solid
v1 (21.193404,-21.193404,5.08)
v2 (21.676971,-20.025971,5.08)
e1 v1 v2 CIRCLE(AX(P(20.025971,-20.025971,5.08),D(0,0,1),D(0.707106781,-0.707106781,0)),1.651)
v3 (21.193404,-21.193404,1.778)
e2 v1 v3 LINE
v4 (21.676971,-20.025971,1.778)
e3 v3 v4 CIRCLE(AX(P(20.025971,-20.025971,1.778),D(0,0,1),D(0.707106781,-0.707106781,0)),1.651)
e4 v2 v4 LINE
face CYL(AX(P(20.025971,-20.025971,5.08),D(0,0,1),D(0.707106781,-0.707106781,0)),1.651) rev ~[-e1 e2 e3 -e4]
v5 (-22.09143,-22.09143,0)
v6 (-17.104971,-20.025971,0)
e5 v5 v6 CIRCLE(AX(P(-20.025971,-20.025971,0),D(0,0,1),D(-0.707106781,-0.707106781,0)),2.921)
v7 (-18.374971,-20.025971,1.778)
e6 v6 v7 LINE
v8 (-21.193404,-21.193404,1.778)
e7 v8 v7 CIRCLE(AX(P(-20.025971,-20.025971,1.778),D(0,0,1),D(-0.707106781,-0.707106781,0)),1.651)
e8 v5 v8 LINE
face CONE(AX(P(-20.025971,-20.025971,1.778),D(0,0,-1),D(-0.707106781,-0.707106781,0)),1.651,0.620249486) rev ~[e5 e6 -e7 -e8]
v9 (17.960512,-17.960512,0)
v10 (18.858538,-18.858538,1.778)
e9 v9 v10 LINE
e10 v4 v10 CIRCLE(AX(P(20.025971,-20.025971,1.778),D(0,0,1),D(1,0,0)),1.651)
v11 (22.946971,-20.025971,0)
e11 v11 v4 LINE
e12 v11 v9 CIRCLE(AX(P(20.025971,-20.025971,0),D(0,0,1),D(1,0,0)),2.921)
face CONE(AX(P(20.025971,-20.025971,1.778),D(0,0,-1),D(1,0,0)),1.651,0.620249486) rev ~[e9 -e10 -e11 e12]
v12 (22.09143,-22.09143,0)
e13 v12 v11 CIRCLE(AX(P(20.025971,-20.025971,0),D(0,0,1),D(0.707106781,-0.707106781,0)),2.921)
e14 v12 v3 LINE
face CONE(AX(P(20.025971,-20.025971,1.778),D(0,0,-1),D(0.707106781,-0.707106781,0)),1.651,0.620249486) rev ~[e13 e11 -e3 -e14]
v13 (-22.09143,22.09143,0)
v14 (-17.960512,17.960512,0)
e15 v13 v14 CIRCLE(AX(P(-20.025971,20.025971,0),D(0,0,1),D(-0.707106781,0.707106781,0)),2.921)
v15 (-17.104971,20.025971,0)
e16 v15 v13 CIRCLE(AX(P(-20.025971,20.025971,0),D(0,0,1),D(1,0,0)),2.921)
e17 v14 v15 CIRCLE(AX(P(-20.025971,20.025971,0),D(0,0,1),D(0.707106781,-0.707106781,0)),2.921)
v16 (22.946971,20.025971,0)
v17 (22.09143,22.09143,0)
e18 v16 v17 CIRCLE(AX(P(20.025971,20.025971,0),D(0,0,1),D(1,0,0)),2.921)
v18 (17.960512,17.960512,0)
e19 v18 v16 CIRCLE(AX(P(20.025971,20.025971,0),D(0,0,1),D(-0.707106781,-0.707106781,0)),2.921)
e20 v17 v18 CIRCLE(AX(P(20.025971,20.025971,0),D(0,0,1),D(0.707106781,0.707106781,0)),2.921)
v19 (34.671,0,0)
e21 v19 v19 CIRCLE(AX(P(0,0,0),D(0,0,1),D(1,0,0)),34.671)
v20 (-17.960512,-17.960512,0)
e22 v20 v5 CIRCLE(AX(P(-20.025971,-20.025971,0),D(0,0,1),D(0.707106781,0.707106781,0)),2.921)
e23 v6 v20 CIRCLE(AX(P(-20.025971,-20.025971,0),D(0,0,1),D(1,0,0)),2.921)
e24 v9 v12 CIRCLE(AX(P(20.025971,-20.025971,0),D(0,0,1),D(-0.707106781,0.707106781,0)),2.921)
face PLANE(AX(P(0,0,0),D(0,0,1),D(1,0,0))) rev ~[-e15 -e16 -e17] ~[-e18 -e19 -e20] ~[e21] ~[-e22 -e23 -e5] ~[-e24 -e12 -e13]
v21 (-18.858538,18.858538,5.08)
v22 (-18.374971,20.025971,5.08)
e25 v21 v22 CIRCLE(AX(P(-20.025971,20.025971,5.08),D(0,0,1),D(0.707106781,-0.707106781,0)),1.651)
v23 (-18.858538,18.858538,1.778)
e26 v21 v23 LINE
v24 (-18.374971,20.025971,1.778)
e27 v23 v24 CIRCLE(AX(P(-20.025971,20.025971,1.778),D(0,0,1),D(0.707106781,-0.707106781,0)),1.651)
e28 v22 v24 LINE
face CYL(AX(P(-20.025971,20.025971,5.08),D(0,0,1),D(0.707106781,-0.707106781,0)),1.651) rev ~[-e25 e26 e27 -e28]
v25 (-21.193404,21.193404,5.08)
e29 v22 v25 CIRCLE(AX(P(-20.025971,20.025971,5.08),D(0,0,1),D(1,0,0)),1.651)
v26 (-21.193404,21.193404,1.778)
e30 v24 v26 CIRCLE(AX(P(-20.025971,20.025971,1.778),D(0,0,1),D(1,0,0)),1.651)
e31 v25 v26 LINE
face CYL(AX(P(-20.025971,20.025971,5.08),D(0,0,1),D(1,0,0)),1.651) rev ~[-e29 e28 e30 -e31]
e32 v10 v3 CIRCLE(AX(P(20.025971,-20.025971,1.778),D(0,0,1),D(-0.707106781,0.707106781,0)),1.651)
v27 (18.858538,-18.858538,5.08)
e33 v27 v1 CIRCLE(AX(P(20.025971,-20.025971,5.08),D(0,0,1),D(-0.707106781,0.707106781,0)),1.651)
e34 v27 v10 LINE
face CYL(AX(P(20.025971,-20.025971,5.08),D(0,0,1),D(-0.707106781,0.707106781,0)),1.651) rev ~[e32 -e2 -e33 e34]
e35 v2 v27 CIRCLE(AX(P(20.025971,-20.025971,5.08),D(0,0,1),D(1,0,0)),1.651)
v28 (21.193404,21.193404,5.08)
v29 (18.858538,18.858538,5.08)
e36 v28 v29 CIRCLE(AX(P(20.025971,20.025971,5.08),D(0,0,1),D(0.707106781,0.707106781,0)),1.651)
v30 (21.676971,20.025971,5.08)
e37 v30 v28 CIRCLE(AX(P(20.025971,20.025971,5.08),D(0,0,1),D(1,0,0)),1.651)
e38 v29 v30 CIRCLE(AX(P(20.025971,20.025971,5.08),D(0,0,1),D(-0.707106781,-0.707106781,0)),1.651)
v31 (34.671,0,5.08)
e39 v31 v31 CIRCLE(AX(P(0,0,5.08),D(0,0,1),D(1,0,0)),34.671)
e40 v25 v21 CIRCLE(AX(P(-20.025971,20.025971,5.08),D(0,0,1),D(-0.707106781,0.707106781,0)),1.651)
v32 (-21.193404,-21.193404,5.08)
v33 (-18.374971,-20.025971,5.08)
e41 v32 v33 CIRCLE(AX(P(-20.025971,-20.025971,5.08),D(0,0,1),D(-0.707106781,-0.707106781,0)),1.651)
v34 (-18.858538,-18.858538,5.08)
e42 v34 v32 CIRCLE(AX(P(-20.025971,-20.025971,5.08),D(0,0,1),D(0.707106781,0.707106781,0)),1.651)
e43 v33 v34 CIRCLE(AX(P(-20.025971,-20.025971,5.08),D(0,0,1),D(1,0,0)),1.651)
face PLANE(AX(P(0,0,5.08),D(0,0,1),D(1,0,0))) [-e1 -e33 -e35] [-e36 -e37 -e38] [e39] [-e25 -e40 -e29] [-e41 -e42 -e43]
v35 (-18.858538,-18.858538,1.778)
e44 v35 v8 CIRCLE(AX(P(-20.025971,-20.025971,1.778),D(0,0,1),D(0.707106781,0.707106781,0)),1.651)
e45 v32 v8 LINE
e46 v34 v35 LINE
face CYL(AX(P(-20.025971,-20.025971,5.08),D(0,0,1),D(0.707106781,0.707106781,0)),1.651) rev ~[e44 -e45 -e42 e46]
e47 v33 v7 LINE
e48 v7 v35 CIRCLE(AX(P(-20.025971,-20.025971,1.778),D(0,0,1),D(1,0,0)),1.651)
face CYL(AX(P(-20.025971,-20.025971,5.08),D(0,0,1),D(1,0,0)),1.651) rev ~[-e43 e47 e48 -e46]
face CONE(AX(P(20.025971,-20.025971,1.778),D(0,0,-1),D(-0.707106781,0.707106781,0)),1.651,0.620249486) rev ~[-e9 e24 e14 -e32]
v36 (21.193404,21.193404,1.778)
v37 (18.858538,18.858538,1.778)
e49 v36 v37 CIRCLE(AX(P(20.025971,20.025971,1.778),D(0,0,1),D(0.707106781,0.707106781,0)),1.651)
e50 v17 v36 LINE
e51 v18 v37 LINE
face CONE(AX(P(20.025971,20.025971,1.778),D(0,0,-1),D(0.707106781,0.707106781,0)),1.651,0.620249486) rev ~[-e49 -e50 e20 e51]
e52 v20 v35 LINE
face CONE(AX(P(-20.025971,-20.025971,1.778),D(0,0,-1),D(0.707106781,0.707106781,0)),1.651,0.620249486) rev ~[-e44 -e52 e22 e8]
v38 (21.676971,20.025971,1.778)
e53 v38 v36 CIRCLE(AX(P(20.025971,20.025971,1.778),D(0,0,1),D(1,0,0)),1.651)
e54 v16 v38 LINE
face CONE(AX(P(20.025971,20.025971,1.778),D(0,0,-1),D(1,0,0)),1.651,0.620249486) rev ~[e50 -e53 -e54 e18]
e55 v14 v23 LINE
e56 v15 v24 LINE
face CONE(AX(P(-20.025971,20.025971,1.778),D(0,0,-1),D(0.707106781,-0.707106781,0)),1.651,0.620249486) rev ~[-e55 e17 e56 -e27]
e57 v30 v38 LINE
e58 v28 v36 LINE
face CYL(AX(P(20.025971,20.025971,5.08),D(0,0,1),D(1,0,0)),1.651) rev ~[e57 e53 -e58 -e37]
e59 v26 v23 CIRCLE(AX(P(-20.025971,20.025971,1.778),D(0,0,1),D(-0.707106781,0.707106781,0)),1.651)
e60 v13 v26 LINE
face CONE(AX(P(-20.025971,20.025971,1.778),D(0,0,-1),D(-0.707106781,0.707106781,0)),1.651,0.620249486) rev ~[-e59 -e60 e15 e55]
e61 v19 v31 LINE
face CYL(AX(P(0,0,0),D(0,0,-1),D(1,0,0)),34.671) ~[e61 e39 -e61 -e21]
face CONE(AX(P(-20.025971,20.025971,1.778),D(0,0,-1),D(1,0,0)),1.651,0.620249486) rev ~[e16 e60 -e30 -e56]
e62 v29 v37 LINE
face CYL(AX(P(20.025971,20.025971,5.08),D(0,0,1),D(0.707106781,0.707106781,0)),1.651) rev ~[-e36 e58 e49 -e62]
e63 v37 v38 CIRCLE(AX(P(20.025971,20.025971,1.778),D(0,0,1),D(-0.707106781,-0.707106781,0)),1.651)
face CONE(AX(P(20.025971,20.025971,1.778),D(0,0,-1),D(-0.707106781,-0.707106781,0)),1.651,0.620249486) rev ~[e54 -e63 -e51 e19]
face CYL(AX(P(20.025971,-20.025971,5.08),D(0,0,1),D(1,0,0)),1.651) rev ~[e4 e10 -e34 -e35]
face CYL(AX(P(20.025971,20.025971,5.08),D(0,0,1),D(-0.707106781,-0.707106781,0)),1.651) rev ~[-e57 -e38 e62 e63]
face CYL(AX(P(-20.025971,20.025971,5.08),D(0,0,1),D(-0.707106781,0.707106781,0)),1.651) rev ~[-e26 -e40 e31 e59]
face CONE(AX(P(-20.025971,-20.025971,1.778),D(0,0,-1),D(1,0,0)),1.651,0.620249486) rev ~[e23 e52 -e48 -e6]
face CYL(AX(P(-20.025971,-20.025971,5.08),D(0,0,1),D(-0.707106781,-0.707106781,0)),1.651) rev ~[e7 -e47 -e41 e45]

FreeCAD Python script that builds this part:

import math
import FreeCAD as App
import Part
import Sketcher
Q = App.Units.Quantity


def edges_at(feature, points):
    """Names of the edges that pass closest to the given points."""
    edges = feature.Shape.Edges
    near = lambda p: min(range(len(edges)), key=lambda i: edges[i].distToShape(Part.Vertex(*p))[0])
    return sorted({f"Edge{near(p) + 1}" for p in points})

doc = App.newDocument("Part")
params = doc.addObject("Spreadsheet::Sheet", "Params")
for row, (alias, value) in enumerate([
    ("sketch1_diameter", "2.73 in"),
    ("pad1_length", "0.2 in"),
    ("sketch2_radius", "0.065 in"),
    ("pocket1_length", "1 in"),
    ("chamfer_size", "0.05 in"),
    ("chamfer_size2", "0.07 in"),
], start=1):
    params.set(f"A{row}", alias)
    params.set(f"B{row}", "=" + value)
    params.setAlias(f"B{row}", alias)

body = doc.addObject("PartDesign::Body", "Body")

# Sketch on XY plane
sketch1 = body.newObject("Sketcher::SketchObject", "Sketch")
sketch1.AttachmentSupport = (doc.getObject("XY_Plane"), [""])
sketch1.MapMode = "FlatFace"
sketch1.addGeometry(Part.Circle(App.Vector(0, 0, 0), App.Vector(0, 0, 1), 35), False)
sketch1.addConstraint(Sketcher.Constraint("Coincident", 0, 3, -1, 1))
sketch1.addConstraint(Sketcher.Constraint("Diameter", 0, Q("2.73 in")))
sketch1.setExpression("Constraints[1]", "Params.sketch1_diameter")
pad1 = body.newObject("PartDesign::Pad", "Pad")
pad1.Profile = sketch1
pad1.setExpression("Length", "Params.pad1_length")

# Sketch on XY plane
sketch2 = body.newObject("Sketcher::SketchObject", "Sketch001")
sketch2.AttachmentSupport = (doc.getObject("XY_Plane"), [""])
sketch2.MapMode = "FlatFace"
sketch2.AttachmentOffset = App.Placement(App.Vector(0, 0, 0.2 * 25.4), App.Rotation())
sketch2.addGeometry(Part.ArcOfCircle(Part.Circle(App.Vector(20, 20, 0), App.Vector(0, 0, 1), 1.7), math.radians(45), math.radians(225)), False)
sketch2.addGeometry(Part.ArcOfCircle(Part.Circle(App.Vector(20, 20, 0), App.Vector(0, 0, 1), 1.7), math.radians(-135), math.radians(0)), False)
sketch2.addGeometry(Part.ArcOfCircle(Part.Circle(App.Vector(20, 20, 0), App.Vector(0, 0, 1), 1.7), math.radians(0), math.radians(45)), False)
sketch2.addGeometry(Part.ArcOfCircle(Part.Circle(App.Vector(-20, -20, 0), App.Vector(0, 0, 1), 1.7), math.radians(0), math.radians(45)), False)
sketch2.addGeometry(Part.ArcOfCircle(Part.Circle(App.Vector(-20, -20, 0), App.Vector(0, 0, 1), 1.7), math.radians(45), math.radians(225)), False)
sketch2.addGeometry(Part.ArcOfCircle(Part.Circle(App.Vector(-20, -20, 0), App.Vector(0, 0, 1), 1.7), math.radians(-135), math.radians(0)), False)
sketch2.addGeometry(Part.ArcOfCircle(Part.Circle(App.Vector(-20, 20, 0), App.Vector(0, 0, 1), 1.7), math.radians(135), math.radians(315)), False)
sketch2.addGeometry(Part.ArcOfCircle(Part.Circle(App.Vector(-20, 20, 0), App.Vector(0, 0, 1), 1.7), math.radians(-45), math.radians(0)), False)
sketch2.addGeometry(Part.ArcOfCircle(Part.Circle(App.Vector(-20, 20, 0), App.Vector(0, 0, 1), 1.7), math.radians(0), math.radians(135)), False)
sketch2.addGeometry(Part.ArcOfCircle(Part.Circle(App.Vector(20, -20, 0), App.Vector(0, 0, 1), 1.7), math.radians(0), math.radians(135)), False)
sketch2.addGeometry(Part.ArcOfCircle(Part.Circle(App.Vector(20, -20, 0), App.Vector(0, 0, 1), 1.7), math.radians(135), math.radians(315)), False)
sketch2.addGeometry(Part.ArcOfCircle(Part.Circle(App.Vector(20, -20, 0), App.Vector(0, 0, 1), 1.7), math.radians(-45), math.radians(0)), False)
sketch2.addConstraint(Sketcher.Constraint("Tangent", 0, 2, 1, 1))
sketch2.addConstraint(Sketcher.Constraint("Tangent", 1, 2, 2, 1))
sketch2.addConstraint(Sketcher.Constraint("Tangent", 2, 2, 0, 1))
sketch2.addConstraint(Sketcher.Constraint("Tangent", 3, 2, 4, 1))
sketch2.addConstraint(Sketcher.Constraint("Tangent", 4, 2, 5, 1))
sketch2.addConstraint(Sketcher.Constraint("Tangent", 5, 2, 3, 1))
sketch2.addConstraint(Sketcher.Constraint("Tangent", 6, 2, 7, 1))
sketch2.addConstraint(Sketcher.Constraint("Tangent", 7, 2, 8, 1))
sketch2.addConstraint(Sketcher.Constraint("Tangent", 8, 2, 6, 1))
sketch2.addConstraint(Sketcher.Constraint("Tangent", 9, 2, 10, 1))
sketch2.addConstraint(Sketcher.Constraint("Tangent", 10, 2, 11, 1))
sketch2.addConstraint(Sketcher.Constraint("Tangent", 11, 2, 9, 1))
sketch2.addConstraint(Sketcher.Constraint("Equal", 2, 3))
sketch2.addConstraint(Sketcher.Constraint("Equal", 5, 6))
sketch2.addConstraint(Sketcher.Constraint("Equal", 8, 9))
sketch2.addConstraint(Sketcher.Constraint("Symmetric", 0, 3, 3, 3, -1, 1))
sketch2.addConstraint(Sketcher.Constraint("Symmetric", 6, 3, 9, 3, -1, 1))
sketch2.addConstraint(Sketcher.Constraint("Symmetric", 0, 3, 6, 3, -2))
sketch2.addConstraint(Sketcher.Constraint("Horizontal", 8, 3, 1, 2))
sketch2.addConstraint(Sketcher.Constraint("Horizontal", 11, 3, 5, 2))
sketch2.addConstraint(Sketcher.Constraint("Horizontal", 0, 2, 6, 2))
sketch2.addConstraint(Sketcher.Constraint("Horizontal", 1, 2, 7, 2))
sketch2.addConstraint(Sketcher.Constraint("Horizontal", 2, 2, 8, 2))
sketch2.addConstraint(Sketcher.Constraint("Horizontal", 3, 2, 9, 2))
sketch2.addConstraint(Sketcher.Constraint("Horizontal", 4, 2, 10, 2))
sketch2.addConstraint(Sketcher.Constraint("Horizontal", 5, 2, 11, 2))
sketch2.addConstraint(Sketcher.Constraint("Vertical", 3, 2, 6, 2))
sketch2.addConstraint(Sketcher.Constraint("Vertical", 4, 2, 8, 2))
sketch2.addConstraint(Sketcher.Constraint("Radius", 0, Q("0.065 in")))
sketch2.addConstraint(Sketcher.Constraint("DistanceX", -1, 1, 0, 3, Q("20.025971 mm")))
sketch2.addConstraint(Sketcher.Constraint("DistanceY", -1, 1, 0, 3, Q("20.025971 mm")))
sketch2.addConstraint(Sketcher.Constraint("DistanceX", 6, 3, 0, 2, Q("38.884509 mm")))
sketch2.addConstraint(Sketcher.Constraint("DistanceX", -1, 1, 2, 2, Q("21.193404 mm")))
sketch2.setExpression("Constraints[28]", "Params.sketch2_radius")
pocket1 = body.newObject("PartDesign::Pocket", "Pocket")
pocket1.Profile = sketch2
pocket1.setExpression("Length", "Params.pocket1_length")
doc.recompute()

chamfer = body.newObject("PartDesign::Chamfer", "Chamfer")
chamfer.Base = (pocket1, edges_at(pocket1, [
    (-21.193, -18.859, 0),
    (18.859, -21.193, 0),
    (18.859, 21.193, 0),
    (-21.193, 18.859, 0),
]))
chamfer.ChamferType = "Two distances"
chamfer.setExpression("Size", "Params.chamfer_size")
chamfer.setExpression("Size2", "Params.chamfer_size2")

doc.recompute()
